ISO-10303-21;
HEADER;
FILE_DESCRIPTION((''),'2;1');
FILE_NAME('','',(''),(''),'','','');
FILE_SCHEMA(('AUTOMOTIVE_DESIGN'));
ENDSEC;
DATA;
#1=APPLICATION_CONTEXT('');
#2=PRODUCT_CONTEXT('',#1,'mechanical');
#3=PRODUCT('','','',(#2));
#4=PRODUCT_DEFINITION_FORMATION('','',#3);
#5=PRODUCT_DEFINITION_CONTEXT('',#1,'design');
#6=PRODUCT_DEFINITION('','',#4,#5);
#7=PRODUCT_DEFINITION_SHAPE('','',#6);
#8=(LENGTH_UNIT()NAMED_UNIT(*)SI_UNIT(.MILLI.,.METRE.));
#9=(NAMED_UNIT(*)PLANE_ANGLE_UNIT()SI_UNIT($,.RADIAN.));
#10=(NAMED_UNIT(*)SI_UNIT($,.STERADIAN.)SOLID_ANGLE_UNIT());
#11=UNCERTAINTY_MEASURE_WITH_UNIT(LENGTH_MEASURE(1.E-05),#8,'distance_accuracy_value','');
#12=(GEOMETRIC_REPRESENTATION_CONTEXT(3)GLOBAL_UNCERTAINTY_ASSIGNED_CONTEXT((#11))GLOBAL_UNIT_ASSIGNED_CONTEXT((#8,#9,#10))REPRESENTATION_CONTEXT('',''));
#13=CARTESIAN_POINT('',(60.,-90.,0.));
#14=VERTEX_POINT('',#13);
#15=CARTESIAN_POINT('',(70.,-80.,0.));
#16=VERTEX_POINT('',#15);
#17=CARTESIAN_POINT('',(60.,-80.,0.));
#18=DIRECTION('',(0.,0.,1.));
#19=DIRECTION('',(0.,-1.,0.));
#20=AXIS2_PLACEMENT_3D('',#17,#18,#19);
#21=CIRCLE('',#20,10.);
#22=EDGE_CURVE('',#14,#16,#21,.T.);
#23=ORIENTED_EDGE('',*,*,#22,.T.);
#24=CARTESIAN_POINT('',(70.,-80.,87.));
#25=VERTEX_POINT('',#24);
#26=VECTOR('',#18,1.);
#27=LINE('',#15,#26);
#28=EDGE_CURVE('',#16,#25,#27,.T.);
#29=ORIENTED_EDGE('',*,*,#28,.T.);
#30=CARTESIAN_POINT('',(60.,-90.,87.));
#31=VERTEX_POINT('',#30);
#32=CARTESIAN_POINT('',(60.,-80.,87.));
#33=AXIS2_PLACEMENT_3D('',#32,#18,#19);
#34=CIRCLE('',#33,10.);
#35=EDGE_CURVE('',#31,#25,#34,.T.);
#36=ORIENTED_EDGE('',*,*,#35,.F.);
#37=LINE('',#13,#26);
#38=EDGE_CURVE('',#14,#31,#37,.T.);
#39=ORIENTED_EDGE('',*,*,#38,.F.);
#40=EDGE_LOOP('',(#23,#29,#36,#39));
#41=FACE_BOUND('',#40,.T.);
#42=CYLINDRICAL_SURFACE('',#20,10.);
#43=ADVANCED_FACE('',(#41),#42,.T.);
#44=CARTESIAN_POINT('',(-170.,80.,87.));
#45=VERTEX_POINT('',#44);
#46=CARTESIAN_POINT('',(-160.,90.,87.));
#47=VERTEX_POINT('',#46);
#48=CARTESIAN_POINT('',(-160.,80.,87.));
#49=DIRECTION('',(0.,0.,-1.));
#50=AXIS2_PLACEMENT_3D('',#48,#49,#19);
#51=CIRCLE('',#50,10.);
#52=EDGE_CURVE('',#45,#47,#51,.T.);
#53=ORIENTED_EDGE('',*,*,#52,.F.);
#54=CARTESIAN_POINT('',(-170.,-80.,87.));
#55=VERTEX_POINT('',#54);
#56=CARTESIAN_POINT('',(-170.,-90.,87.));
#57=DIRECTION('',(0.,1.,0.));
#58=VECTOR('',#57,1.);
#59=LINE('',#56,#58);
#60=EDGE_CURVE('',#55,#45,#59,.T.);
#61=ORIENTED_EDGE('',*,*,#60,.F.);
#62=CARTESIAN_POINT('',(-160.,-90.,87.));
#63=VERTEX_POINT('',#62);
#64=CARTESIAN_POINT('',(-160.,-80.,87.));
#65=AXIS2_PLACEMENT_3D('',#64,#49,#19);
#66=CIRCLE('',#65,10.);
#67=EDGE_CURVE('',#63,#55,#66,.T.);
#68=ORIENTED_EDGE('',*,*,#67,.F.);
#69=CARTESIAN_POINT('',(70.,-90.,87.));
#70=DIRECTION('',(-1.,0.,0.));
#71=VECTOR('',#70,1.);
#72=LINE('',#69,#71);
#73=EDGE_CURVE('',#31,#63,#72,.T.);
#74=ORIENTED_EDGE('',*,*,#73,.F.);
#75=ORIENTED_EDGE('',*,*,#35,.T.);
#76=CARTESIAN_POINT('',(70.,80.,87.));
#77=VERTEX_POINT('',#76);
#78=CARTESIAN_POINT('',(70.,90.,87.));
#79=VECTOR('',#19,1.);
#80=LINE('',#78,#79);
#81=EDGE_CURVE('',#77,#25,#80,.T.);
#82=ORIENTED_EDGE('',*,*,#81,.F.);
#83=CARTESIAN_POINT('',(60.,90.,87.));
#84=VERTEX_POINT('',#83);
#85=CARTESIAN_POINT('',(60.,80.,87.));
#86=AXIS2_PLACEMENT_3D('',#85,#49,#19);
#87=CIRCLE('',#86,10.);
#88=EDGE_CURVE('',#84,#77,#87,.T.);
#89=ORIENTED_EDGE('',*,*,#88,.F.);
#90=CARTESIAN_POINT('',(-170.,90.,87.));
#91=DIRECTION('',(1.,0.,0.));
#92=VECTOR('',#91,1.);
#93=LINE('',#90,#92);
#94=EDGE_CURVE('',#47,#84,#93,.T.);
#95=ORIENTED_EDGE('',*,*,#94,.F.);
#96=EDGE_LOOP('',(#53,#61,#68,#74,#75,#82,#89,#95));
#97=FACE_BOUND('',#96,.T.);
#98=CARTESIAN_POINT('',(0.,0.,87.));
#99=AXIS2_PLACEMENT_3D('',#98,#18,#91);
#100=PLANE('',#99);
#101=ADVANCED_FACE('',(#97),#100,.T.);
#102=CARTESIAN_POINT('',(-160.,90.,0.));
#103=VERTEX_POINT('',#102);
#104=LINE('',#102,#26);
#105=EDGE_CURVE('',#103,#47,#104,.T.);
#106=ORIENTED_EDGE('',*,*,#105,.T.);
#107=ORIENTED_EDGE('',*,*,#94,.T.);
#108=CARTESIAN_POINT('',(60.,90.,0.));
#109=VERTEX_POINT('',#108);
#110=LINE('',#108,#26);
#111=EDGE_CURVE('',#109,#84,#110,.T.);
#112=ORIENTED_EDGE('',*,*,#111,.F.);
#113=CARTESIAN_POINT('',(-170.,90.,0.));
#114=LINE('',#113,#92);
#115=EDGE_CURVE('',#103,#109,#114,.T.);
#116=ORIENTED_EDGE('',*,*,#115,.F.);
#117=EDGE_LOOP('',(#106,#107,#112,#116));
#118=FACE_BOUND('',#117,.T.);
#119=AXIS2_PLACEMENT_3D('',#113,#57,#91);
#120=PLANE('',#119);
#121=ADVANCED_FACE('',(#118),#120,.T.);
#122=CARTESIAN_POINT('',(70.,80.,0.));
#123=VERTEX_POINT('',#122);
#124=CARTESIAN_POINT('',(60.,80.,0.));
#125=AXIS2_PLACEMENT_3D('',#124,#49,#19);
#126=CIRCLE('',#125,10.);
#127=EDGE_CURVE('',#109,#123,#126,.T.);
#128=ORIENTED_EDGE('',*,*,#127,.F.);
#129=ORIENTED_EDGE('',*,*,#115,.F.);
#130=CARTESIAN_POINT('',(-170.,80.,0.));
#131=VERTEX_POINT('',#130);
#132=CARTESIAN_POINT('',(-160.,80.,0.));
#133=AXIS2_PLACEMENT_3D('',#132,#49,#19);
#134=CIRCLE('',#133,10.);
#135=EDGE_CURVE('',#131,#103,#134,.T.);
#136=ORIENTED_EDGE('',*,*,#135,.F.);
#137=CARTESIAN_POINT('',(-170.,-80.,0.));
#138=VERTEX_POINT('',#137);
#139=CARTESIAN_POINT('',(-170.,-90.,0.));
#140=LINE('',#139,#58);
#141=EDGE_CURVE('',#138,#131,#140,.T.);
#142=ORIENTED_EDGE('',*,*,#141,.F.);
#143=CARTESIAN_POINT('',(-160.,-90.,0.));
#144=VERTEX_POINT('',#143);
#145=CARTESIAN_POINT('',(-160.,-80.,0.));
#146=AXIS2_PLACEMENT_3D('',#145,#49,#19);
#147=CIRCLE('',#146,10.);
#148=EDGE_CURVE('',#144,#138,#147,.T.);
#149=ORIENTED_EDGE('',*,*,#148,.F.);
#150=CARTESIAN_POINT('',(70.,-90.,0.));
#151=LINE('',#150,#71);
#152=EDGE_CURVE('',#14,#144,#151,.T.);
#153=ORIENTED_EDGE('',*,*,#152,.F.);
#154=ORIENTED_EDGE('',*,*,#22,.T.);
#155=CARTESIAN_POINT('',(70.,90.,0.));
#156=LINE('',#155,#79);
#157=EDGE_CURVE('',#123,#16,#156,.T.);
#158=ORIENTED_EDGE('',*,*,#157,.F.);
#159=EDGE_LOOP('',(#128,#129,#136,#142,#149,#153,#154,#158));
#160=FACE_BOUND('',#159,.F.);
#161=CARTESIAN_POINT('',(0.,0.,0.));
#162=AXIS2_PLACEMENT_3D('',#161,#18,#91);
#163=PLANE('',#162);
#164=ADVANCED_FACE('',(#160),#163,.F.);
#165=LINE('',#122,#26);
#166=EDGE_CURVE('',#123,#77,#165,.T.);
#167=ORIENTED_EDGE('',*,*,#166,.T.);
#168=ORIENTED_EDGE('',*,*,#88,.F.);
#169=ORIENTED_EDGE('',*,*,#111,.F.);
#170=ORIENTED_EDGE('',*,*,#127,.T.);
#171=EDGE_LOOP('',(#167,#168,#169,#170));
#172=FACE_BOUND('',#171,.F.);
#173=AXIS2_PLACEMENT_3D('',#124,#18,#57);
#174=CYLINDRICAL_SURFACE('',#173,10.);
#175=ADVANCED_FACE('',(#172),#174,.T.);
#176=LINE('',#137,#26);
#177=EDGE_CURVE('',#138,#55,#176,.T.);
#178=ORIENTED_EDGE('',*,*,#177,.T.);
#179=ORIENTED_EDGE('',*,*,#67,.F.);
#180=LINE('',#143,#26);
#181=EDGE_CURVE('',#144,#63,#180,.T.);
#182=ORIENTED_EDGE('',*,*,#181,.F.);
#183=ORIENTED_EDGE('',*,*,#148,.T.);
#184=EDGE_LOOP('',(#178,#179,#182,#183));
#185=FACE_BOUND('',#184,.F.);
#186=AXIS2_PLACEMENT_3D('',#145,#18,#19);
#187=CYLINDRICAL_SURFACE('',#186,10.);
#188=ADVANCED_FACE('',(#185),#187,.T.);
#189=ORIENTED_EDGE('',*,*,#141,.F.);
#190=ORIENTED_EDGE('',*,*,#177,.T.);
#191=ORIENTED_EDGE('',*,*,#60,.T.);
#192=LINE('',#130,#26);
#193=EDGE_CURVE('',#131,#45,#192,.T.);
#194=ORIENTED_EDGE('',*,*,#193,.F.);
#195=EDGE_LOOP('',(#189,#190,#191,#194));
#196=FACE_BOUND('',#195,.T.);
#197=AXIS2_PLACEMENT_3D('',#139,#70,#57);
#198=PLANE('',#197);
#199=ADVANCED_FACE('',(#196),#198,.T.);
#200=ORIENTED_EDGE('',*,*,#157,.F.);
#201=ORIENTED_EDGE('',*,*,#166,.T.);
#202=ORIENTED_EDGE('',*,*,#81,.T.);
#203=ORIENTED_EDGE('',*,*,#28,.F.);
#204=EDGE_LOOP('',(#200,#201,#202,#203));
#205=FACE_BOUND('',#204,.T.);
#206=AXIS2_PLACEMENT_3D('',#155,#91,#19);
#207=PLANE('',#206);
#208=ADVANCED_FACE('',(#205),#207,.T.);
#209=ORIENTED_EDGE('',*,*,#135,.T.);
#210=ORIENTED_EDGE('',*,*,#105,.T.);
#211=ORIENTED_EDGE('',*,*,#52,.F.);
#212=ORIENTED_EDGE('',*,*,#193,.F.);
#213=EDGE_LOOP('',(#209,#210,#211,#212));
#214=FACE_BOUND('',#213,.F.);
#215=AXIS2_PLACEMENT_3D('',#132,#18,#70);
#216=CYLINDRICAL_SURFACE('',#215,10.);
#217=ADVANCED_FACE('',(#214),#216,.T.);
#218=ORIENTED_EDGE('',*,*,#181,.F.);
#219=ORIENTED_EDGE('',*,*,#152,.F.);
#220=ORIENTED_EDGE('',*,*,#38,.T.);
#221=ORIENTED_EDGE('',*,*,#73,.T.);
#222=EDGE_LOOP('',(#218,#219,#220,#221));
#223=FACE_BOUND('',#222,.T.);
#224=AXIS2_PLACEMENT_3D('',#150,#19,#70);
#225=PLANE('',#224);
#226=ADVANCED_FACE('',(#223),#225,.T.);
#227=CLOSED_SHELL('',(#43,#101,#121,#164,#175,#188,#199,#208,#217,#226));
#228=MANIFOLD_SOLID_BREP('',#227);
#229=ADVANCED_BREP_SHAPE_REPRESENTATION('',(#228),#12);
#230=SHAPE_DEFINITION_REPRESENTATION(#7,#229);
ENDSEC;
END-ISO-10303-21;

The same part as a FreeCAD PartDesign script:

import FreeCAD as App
import Part
import Sketcher

V = App.Vector
Q = App.Units.Quantity


def edges_at(feature, points):
    """Names of the edges that pass closest to the given points."""
    edges = feature.Shape.Edges
    near = lambda p: min(range(len(edges)), key=lambda i: edges[i].distToShape(Part.Vertex(*p))[0])
    return sorted({f"Edge{near(p) + 1}" for p in points})


def add_polygon(sketch, points):
    """Adds a closed chain of lines whose ends are joined by coincident constraints."""
    first, n = sketch.GeometryCount, len(points)
    for a, b in zip(points, points[1:] + points[:1]):
        sketch.addGeometry(Part.LineSegment(App.Vector(*a, 0), App.Vector(*b, 0)), False)
    for i in range(n):
        sketch.addConstraint(Sketcher.Constraint("Coincident", first + i, 2, first + (i + 1) % n, 1))

doc = App.newDocument("Part")
body = doc.addObject("PartDesign::Body", "Body")

# Sketch on XY plane
sketch1 = body.newObject("Sketcher::SketchObject", "Sketch")
sketch1.AttachmentSupport = (doc.getObject("XY_Plane"), [""])
sketch1.MapMode = "FlatFace"
add_polygon(sketch1, [(-170, -90), (70, -90), (70, 90), (-170, 90)])  # lines 0-3
sketch1.addConstraint(Sketcher.Constraint("Horizontal", 0))
sketch1.addConstraint(Sketcher.Constraint("Vertical", 1))
sketch1.addConstraint(Sketcher.Constraint("Horizontal", 2))
sketch1.addConstraint(Sketcher.Constraint("Vertical", 3))
sketch1.addConstraint(Sketcher.Constraint("DistanceX", 0, 1, 0, 2, Q("240 mm")))
sketch1.addConstraint(Sketcher.Constraint("DistanceY", 1, 1, 1, 2, Q("180 mm")))
sketch1.addConstraint(Sketcher.Constraint("DistanceX", -1, 1, 0, 2, Q("70 mm")))
sketch1.addConstraint(Sketcher.Constraint("DistanceY", 0, 2, -1, 1, Q("90 mm")))
pad1 = body.newObject("PartDesign::Pad", "Pad")
pad1.Profile = sketch1
pad1.Length = 87
doc.recompute()

fillet = body.newObject("PartDesign::Fillet", "Fillet")
fillet.Base = (pad1, edges_at(pad1, [
    (70, 90, 43.5),
    (-170, 90, 43.5),
    (-170, -90, 43.5),
    (70, -90, 43.5),
]))
fillet.Radius = 10

doc.recompute()
